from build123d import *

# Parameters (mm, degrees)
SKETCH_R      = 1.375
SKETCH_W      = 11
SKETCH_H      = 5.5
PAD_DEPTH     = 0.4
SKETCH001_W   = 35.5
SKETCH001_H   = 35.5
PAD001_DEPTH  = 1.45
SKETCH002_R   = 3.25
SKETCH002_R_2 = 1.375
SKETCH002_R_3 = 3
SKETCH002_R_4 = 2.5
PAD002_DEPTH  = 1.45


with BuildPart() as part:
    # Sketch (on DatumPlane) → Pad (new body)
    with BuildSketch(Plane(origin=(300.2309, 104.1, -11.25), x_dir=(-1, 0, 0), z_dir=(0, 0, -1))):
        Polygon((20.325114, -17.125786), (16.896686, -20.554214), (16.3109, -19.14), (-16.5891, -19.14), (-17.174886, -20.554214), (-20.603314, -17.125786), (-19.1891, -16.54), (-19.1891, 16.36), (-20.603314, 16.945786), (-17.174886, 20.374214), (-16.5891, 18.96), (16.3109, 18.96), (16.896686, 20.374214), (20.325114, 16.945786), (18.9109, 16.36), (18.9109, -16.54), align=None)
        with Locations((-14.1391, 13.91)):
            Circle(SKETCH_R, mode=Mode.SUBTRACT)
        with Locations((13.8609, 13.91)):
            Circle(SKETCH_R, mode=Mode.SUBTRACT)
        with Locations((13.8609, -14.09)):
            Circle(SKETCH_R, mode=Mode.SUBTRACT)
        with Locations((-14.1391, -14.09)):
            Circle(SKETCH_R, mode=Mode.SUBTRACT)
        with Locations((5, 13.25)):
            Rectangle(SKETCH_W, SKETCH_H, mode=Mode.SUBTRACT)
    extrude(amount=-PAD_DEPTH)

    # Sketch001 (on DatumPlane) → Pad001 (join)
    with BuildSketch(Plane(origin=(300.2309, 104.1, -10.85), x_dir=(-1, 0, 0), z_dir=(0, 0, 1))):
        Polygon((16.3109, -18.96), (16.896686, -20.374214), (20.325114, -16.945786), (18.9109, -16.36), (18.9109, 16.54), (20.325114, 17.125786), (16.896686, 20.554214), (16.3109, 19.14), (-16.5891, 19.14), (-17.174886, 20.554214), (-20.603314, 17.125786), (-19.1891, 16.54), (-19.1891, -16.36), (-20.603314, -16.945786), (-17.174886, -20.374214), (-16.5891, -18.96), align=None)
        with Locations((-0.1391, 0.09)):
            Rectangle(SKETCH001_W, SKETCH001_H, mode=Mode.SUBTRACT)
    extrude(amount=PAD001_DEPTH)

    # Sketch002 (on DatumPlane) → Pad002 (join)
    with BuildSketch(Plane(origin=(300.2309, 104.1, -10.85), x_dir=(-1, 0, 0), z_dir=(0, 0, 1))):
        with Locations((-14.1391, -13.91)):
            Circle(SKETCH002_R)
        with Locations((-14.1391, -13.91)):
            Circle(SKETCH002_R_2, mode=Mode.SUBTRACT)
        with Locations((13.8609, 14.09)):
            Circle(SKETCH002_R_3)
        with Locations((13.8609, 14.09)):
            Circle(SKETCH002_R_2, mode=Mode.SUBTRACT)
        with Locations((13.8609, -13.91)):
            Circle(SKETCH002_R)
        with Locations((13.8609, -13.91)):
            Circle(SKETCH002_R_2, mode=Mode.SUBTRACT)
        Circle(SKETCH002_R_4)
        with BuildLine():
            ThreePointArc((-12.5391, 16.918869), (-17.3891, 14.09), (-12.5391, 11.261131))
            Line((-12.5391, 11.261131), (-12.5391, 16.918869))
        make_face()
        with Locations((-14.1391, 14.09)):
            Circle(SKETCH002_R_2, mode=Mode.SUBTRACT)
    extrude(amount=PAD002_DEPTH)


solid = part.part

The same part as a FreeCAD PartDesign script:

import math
import FreeCAD as App
import Part
import Sketcher
from FreeCAD import Vector
Q = App.Units.Quantity

doc = App.newDocument("Part")
params = doc.addObject("Spreadsheet::Sheet", "Params")
for row, (alias, value) in enumerate([
    ("sketch1_diameter", "2.75 mm"),
    ("sketch1_width", "11 mm"),
    ("sketch1_width2", "32.9 mm"),
    ("sketch1_height", "5.5 mm"),
    ("pad1_length", "0.4 mm"),
    ("sketch2_width", "32.9 mm"),
    ("sketch2_width2", "35.5 mm"),
    ("pad2_length", "1.45 mm"),
    ("sketch3_diameter", "6 mm"),
    ("sketch3_diameter2", "5 mm"),
    ("sketch3_diameter3", "6.5 mm"),
    ("sketch3_diameter4", "2.75 mm"),
    ("pad3_length", "1.45 mm"),
], start=1):
    params.set(f"A{row}", alias)
    params.set(f"B{row}", "=" + value)
    params.setAlias(f"B{row}", alias)

body = doc.addObject("PartDesign::Body", "Body")

# Sketch on XY plane
sketch1 = body.newObject("Sketcher::SketchObject", "Sketch")
sketch1.AttachmentSupport = (doc.getObject("XY_Plane"), [""])
sketch1.MapMode = "FlatFace"
sketch1.AttachmentOffset = App.Placement(Vector(0, 0, -11.25), App.Rotation())
sketch1.addGeometry(Part.LineSegment(Vector(283.3, 83.5, 0), Vector(279.9, 87, 0)), False)
sketch1.addGeometry(Part.LineSegment(Vector(279.9, 87, 0), Vector(281.3, 87.6, 0)), False)
sketch1.addGeometry(Part.LineSegment(Vector(281.3, 87.6, 0), Vector(281.3, 120.5, 0)), False)
sketch1.addGeometry(Part.LineSegment(Vector(281.3, 120.5, 0), Vector(279.9, 121, 0)), False)
sketch1.addGeometry(Part.LineSegment(Vector(279.9, 121, 0), Vector(283.3, 124.5, 0)), False)
sketch1.addGeometry(Part.LineSegment(Vector(283.3, 124.5, 0), Vector(283.9, 123.1, 0)), False)
sketch1.addGeometry(Part.LineSegment(Vector(283.9, 123.1, 0), Vector(316.8, 123.1, 0)), False)
sketch1.addGeometry(Part.LineSegment(Vector(316.8, 123.1, 0), Vector(317.4, 124.5, 0)), False)
sketch1.addGeometry(Part.LineSegment(Vector(317.4, 124.5, 0), Vector(320.8, 121, 0)), False)
sketch1.addGeometry(Part.LineSegment(Vector(320.8, 121, 0), Vector(319.4, 120.5, 0)), False)
sketch1.addGeometry(Part.LineSegment(Vector(319.4, 120.5, 0), Vector(319.4, 87.6, 0)), False)
sketch1.addGeometry(Part.LineSegment(Vector(319.4, 87.6, 0), Vector(320.8, 87, 0)), False)
sketch1.addGeometry(Part.LineSegment(Vector(320.8, 87, 0), Vector(317.4, 83.5, 0)), False)
sketch1.addGeometry(Part.LineSegment(Vector(317.4, 83.5, 0), Vector(316.8, 85, 0)), False)
sketch1.addGeometry(Part.LineSegment(Vector(316.8, 85, 0), Vector(283.9, 85, 0)), False)
sketch1.addGeometry(Part.LineSegment(Vector(283.9, 85, 0), Vector(283.3, 83.5, 0)), False)
sketch1.addGeometry(Part.Circle(Vector(286.4, 90, 0), Vector(0, 0, 1), 1.4), False)
sketch1.addGeometry(Part.Circle(Vector(314.4, 90, 0), Vector(0, 0, 1), 1.4), False)
sketch1.addGeometry(Part.Circle(Vector(286.4, 118, 0), Vector(0, 0, 1), 1.4), False)
sketch1.addGeometry(Part.LineSegment(Vector(300.7, 114.6, 0), Vector(300.7, 120.1, 0)), False)
sketch1.addGeometry(Part.LineSegment(Vector(300.7, 120.1, 0), Vector(289.7, 120.1, 0)), False)
sketch1.addGeometry(Part.LineSegment(Vector(289.7, 120.1, 0), Vector(289.7, 114.6, 0)), False)
sketch1.addGeometry(Part.LineSegment(Vector(289.7, 114.6, 0), Vector(300.7, 114.6, 0)), False)
sketch1.addGeometry(Part.Circle(Vector(314.4, 118, 0), Vector(0, 0, 1), 1.4), False)
sketch1.addConstraint(Sketcher.Constraint("Coincident", 0, 2, 1, 1))
sketch1.addConstraint(Sketcher.Constraint("Coincident", 1, 2, 2, 1))
sketch1.addConstraint(Sketcher.Constraint("Coincident", 2, 2, 3, 1))
sketch1.addConstraint(Sketcher.Constraint("Coincident", 3, 2, 4, 1))
sketch1.addConstraint(Sketcher.Constraint("Coincident", 4, 2, 5, 1))
sketch1.addConstraint(Sketcher.Constraint("Coincident", 5, 2, 6, 1))
sketch1.addConstraint(Sketcher.Constraint("Coincident", 6, 2, 7, 1))
sketch1.addConstraint(Sketcher.Constraint("Coincident", 7, 2, 8, 1))
sketch1.addConstraint(Sketcher.Constraint("Coincident", 8, 2, 9, 1))
sketch1.addConstraint(Sketcher.Constraint("Coincident", 9, 2, 10, 1))
sketch1.addConstraint(Sketcher.Constraint("Coincident", 10, 2, 11, 1))
sketch1.addConstraint(Sketcher.Constraint("Coincident", 11, 2, 12, 1))
sketch1.addConstraint(Sketcher.Constraint("Coincident", 12, 2, 13, 1))
sketch1.addConstraint(Sketcher.Constraint("Coincident", 13, 2, 14, 1))
sketch1.addConstraint(Sketcher.Constraint("Coincident", 14, 2, 15, 1))
sketch1.addConstraint(Sketcher.Constraint("Coincident", 15, 2, 0, 1))
sketch1.addConstraint(Sketcher.Constraint("Coincident", 19, 2, 20, 1))
sketch1.addConstraint(Sketcher.Constraint("Coincident", 20, 2, 21, 1))
sketch1.addConstraint(Sketcher.Constraint("Coincident", 21, 2, 22, 1))
sketch1.addConstraint(Sketcher.Constraint("Coincident", 22, 2, 19, 1))
sketch1.addConstraint(Sketcher.Constraint("Vertical", 2))
sketch1.addConstraint(Sketcher.Constraint("Horizontal", 6))
sketch1.addConstraint(Sketcher.Constraint("Vertical", 10))
sketch1.addConstraint(Sketcher.Constraint("Horizontal", 14))
sketch1.addConstraint(Sketcher.Constraint("Vertical", 19))
sketch1.addConstraint(Sketcher.Constraint("Horizontal", 20))
sketch1.addConstraint(Sketcher.Constraint("Vertical", 21))
sketch1.addConstraint(Sketcher.Constraint("Horizontal", 22))
sketch1.addConstraint(Sketcher.Constraint("Equal", 16, 17))
sketch1.addConstraint(Sketcher.Constraint("Equal", 17, 18))
sketch1.addConstraint(Sketcher.Constraint("Equal", 18, 23))
sketch1.addConstraint(Sketcher.Constraint("Perpendicular", 0, 4))
sketch1.addConstraint(Sketcher.Constraint("Perpendicular", 1, 5))
sketch1.addConstraint(Sketcher.Constraint("Perpendicular", 3, 7))
sketch1.addConstraint(Sketcher.Constraint("Perpendicular", 4, 8))
sketch1.addConstraint(Sketcher.Constraint("Perpendicular", 5, 9))
sketch1.addConstraint(Sketcher.Constraint("Perpendicular", 7, 11))
sketch1.addConstraint(Sketcher.Constraint("Perpendicular", 8, 12))
sketch1.addConstraint(Sketcher.Constraint("Perpendicular", 9, 13))
sketch1.addConstraint(Sketcher.Constraint("Perpendicular", 11, 15))
sketch1.addConstraint(Sketcher.Constraint("Horizontal", 16, 3, 17, 3))
sketch1.addConstraint(Sketcher.Constraint("Horizontal", 18, 3, 23, 3))
sketch1.addConstraint(Sketcher.Constraint("Horizontal", 4, 2, 7, 2))
sketch1.addConstraint(Sketcher.Constraint("Horizontal", 3, 2, 8, 2))
sketch1.addConstraint(Sketcher.Constraint("Horizontal", 2, 2, 9, 2))
sketch1.addConstraint(Sketcher.Constraint("Horizontal", 1, 2, 10, 2))
sketch1.addConstraint(Sketcher.Constraint("Horizontal", 0, 2, 11, 2))
sketch1.addConstraint(Sketcher.Constraint("Horizontal", 12, 2, 15, 2))
sketch1.addConstraint(Sketcher.Constraint("Vertical", 16, 3, 18, 3))
sketch1.addConstraint(Sketcher.Constraint("Vertical", 17, 3, 23, 3))
sketch1.addConstraint(Sketcher.Constraint("Vertical", 0, 2, 3, 2))
sketch1.addConstraint(Sketcher.Constraint("Vertical", 8, 2, 11, 2))
sketch1.addConstraint(Sketcher.Constraint("Vertical", 7, 2, 12, 2))
sketch1.addConstraint(Sketcher.Constraint("Vertical", 6, 2, 13, 2))
sketch1.addConstraint(Sketcher.Constraint("Vertical", 5, 2, 14, 2))
sketch1.addConstraint(Sketcher.Constraint("Equal", 14, 2))
sketch1.addConstraint(Sketcher.Constraint("Equal", 3, 5))
sketch1.addConstraint(Sketcher.Constraint("Diameter", 16, Q("2.75 mm")))
sketch1.addConstraint(Sketcher.Constraint("DistanceX", 20, 2, 20, 1, Q("11 mm")))
sketch1.addConstraint(Sketcher.Constraint("DistanceX", 6, 1, 6, 2, Q("32.9 mm")))
sketch1.addConstraint(Sketcher.Constraint("DistanceY", 19, 1, 19, 2, Q("5.5 mm")))
sketch1.addConstraint(Sketcher.Constraint("DistanceX", 16, 3, 17, 3, Q("28 mm")))
sketch1.addConstraint(Sketcher.Constraint("DistanceY", 16, 3, 18, 3, Q("28 mm")))
sketch1.addConstraint(Sketcher.Constraint("DistanceY", -1, 1, 19, 2, Q("120.1 mm")))
sketch1.addConstraint(Sketcher.Constraint("DistanceX", 2, 2, 5, 2, Q("2.6 mm")))
sketch1.addConstraint(Sketcher.Constraint("DistanceX", -1, 1, 16, 3, Q("286.37 mm")))
sketch1.addConstraint(Sketcher.Constraint("DistanceY", -1, 1, 16, 3, Q("90.01 mm")))
sketch1.addConstraint(Sketcher.Constraint("DistanceX", -1, 1, 1, 2, Q("281.32 mm")))
sketch1.addConstraint(Sketcher.Constraint("DistanceY", -1, 1, 1, 2, Q("87.56 mm")))
sketch1.addConstraint(Sketcher.Constraint("DistanceX", -1, 1, 19, 2, Q("300.7309 mm")))
sketch1.addConstraint(Sketcher.Constraint("Distance", 0, Q("4.848529 mm")))
sketch1.addConstraint(Sketcher.Constraint("Distance", 1, Q("1.530734 mm")))
sketch1.setExpression("Constraints[57]", "Params.sketch1_diameter")
sketch1.setExpression("Constraints[58]", "Params.sketch1_width")
sketch1.setExpression("Constraints[59]", "Params.sketch1_width2")
sketch1.setExpression("Constraints[60]", "Params.sketch1_height")
pad1 = body.newObject("PartDesign::Pad", "Pad")
pad1.Profile = sketch1
pad1.setExpression("Length", "Params.pad1_length")

# Sketch on XY plane
sketch2 = body.newObject("Sketcher::SketchObject", "Sketch001")
sketch2.AttachmentSupport = (doc.getObject("XY_Plane"), [""])
sketch2.MapMode = "FlatFace"
sketch2.AttachmentOffset = App.Placement(Vector(0, 0, -10.85), App.Rotation())
sketch2.addGeometry(Part.LineSegment(Vector(283.9, 123.1, 0), Vector(283.3, 124.5, 0)), False)
sketch2.addGeometry(Part.LineSegment(Vector(283.3, 124.5, 0), Vector(279.9, 121, 0)), False)
sketch2.addGeometry(Part.LineSegment(Vector(279.9, 121, 0), Vector(281.3, 120.5, 0)), False)
sketch2.addGeometry(Part.LineSegment(Vector(281.3, 120.5, 0), Vector(281.3, 87.6, 0)), False)
sketch2.addGeometry(Part.LineSegment(Vector(281.3, 87.6, 0), Vector(279.9, 87, 0)), False)
sketch2.addGeometry(Part.LineSegment(Vector(279.9, 87, 0), Vector(283.3, 83.5, 0)), False)
sketch2.addGeometry(Part.LineSegment(Vector(283.3, 83.5, 0), Vector(283.9, 85, 0)), False)
sketch2.addGeometry(Part.LineSegment(Vector(283.9, 85, 0), Vector(316.8, 85, 0)), False)
sketch2.addGeometry(Part.LineSegment(Vector(316.8, 85, 0), Vector(317.4, 83.5, 0)), False)
sketch2.addGeometry(Part.LineSegment(Vector(317.4, 83.5, 0), Vector(320.8, 87, 0)), False)
sketch2.addGeometry(Part.LineSegment(Vector(320.8, 87, 0), Vector(319.4, 87.6, 0)), False)
sketch2.addGeometry(Part.LineSegment(Vector(319.4, 87.6, 0), Vector(319.4, 120.5, 0)), False)
sketch2.addGeometry(Part.LineSegment(Vector(319.4, 120.5, 0), Vector(320.8, 121, 0)), False)
sketch2.addGeometry(Part.LineSegment(Vector(320.8, 121, 0), Vector(317.4, 124.5, 0)), False)
sketch2.addGeometry(Part.LineSegment(Vector(317.4, 124.5, 0), Vector(316.8, 123.1, 0)), False)
sketch2.addGeometry(Part.LineSegment(Vector(316.8, 123.1, 0), Vector(283.9, 123.1, 0)), False)
sketch2.addGeometry(Part.LineSegment(Vector(282.6, 121.8, 0), Vector(318.1, 121.8, 0)), False)
sketch2.addGeometry(Part.LineSegment(Vector(318.1, 121.8, 0), Vector(318.1, 86.3, 0)), False)
sketch2.addGeometry(Part.LineSegment(Vector(318.1, 86.3, 0), Vector(282.6, 86.3, 0)), False)
sketch2.addGeometry(Part.LineSegment(Vector(282.6, 86.3, 0), Vector(282.6, 121.8, 0)), False)
sketch2.addConstraint(Sketcher.Constraint("Coincident", 0, 2, 1, 1))
sketch2.addConstraint(Sketcher.Constraint("Coincident", 1, 2, 2, 1))
sketch2.addConstraint(Sketcher.Constraint("Coincident", 2, 2, 3, 1))
sketch2.addConstraint(Sketcher.Constraint("Coincident", 3, 2, 4, 1))
sketch2.addConstraint(Sketcher.Constraint("Coincident", 4, 2, 5, 1))
sketch2.addConstraint(Sketcher.Constraint("Coincident", 5, 2, 6, 1))
sketch2.addConstraint(Sketcher.Constraint("Coincident", 6, 2, 7, 1))
sketch2.addConstraint(Sketcher.Constraint("Coincident", 7, 2, 8, 1))
sketch2.addConstraint(Sketcher.Constraint("Coincident", 8, 2, 9, 1))
sketch2.addConstraint(Sketcher.Constraint("Coincident", 9, 2, 10, 1))
sketch2.addConstraint(Sketcher.Constraint("Coincident", 10, 2, 11, 1))
sketch2.addConstraint(Sketcher.Constraint("Coincident", 11, 2, 12, 1))
sketch2.addConstraint(Sketcher.Constraint("Coincident", 12, 2, 13, 1))
sketch2.addConstraint(Sketcher.Constraint("Coincident", 13, 2, 14, 1))
sketch2.addConstraint(Sketcher.Constraint("Coincident", 14, 2, 15, 1))
sketch2.addConstraint(Sketcher.Constraint("Coincident", 15, 2, 0, 1))
sketch2.addConstraint(Sketcher.Constraint("Coincident", 16, 2, 17, 1))
sketch2.addConstraint(Sketcher.Constraint("Coincident", 17, 2, 18, 1))
sketch2.addConstraint(Sketcher.Constraint("Coincident", 18, 2, 19, 1))
sketch2.addConstraint(Sketcher.Constraint("Coincident", 19, 2, 16, 1))
sketch2.addConstraint(Sketcher.Constraint("Vertical", 3))
sketch2.addConstraint(Sketcher.Constraint("Horizontal", 7))
sketch2.addConstraint(Sketcher.Constraint("Vertical", 11))
sketch2.addConstraint(Sketcher.Constraint("Horizontal", 15))
sketch2.addConstraint(Sketcher.Constraint("Horizontal", 16))
sketch2.addConstraint(Sketcher.Constraint("Vertical", 17))
sketch2.addConstraint(Sketcher.Constraint("Horizontal", 18))
sketch2.addConstraint(Sketcher.Constraint("Vertical", 19))
sketch2.addConstraint(Sketcher.Constraint("Perpendicular", 0, 4))
sketch2.addConstraint(Sketcher.Constraint("Perpendicular", 1, 5))
sketch2.addConstraint(Sketcher.Constraint("Perpendicular", 2, 6))
sketch2.addConstraint(Sketcher.Constraint("Perpendicular", 4, 8))
sketch2.addConstraint(Sketcher.Constraint("Perpendicular", 5, 9))
sketch2.addConstraint(Sketcher.Constraint("Perpendicular", 6, 10))
sketch2.addConstraint(Sketcher.Constraint("Perpendicular", 8, 12))
sketch2.addConstraint(Sketcher.Constraint("Perpendicular", 9, 13))
sketch2.addConstraint(Sketcher.Constraint("Perpendicular", 10, 14))
sketch2.addConstraint(Sketcher.Constraint("Horizontal", 5, 2, 8, 2))
sketch2.addConstraint(Sketcher.Constraint("Horizontal", 4, 2, 9, 2))
sketch2.addConstraint(Sketcher.Constraint("Horizontal", 3, 2, 10, 2))
sketch2.addConstraint(Sketcher.Constraint("Horizontal", 2, 2, 11, 2))
sketch2.addConstraint(Sketcher.Constraint("Horizontal", 1, 2, 12, 2))
sketch2.addConstraint(Sketcher.Constraint("Horizontal", 0, 2, 13, 2))
sketch2.addConstraint(Sketcher.Constraint("Vertical", 1, 2, 4, 2))
sketch2.addConstraint(Sketcher.Constraint("Vertical", 0, 2, 5, 2))
sketch2.addConstraint(Sketcher.Constraint("Vertical", 9, 2, 12, 2))
sketch2.addConstraint(Sketcher.Constraint("Vertical", 8, 2, 13, 2))
sketch2.addConstraint(Sketcher.Constraint("Vertical", 7, 2, 14, 2))
sketch2.addConstraint(Sketcher.Constraint("Equal", 15, 3))
sketch2.addConstraint(Sketcher.Constraint("Equal", 18, 17))
sketch2.addConstraint(Sketcher.Constraint("Equal", 0, 2))
sketch2.addConstraint(Sketcher.Constraint("DistanceX", 7, 1, 7, 2, Q("32.9 mm")))
sketch2.addConstraint(Sketcher.Constraint("DistanceX", 16, 1, 16, 2, Q("35.5 mm")))
sketch2.addConstraint(Sketcher.Constraint("DistanceY", 4, 2, 0, 2, Q("37.5 mm")))
sketch2.addConstraint(Sketcher.Constraint("DistanceX", 3, 2, 6, 2, Q("2.6 mm")))
sketch2.addConstraint(Sketcher.Constraint("DistanceX", 14, 2, 16, 2, Q("1.3 mm")))
sketch2.addConstraint(Sketcher.Constraint("DistanceY", 16, 2, 14, 2, Q("1.3 mm")))
sketch2.addConstraint(Sketcher.Constraint("DistanceX", -1, 1, 2, 2, Q("281.32 mm")))
sketch2.addConstraint(Sketcher.Constraint("DistanceY", -1, 1, 2, 2, Q("120.46 mm")))
sketch2.addConstraint(Sketcher.Constraint("Distance", 1, Q("4.848529 mm")))
sketch2.setExpression("Constraints[51]", "Params.sketch2_width")
sketch2.setExpression("Constraints[52]", "Params.sketch2_width2")
pad2 = body.newObject("PartDesign::Pad", "Pad001")
pad2.Profile = sketch2
pad2.setExpression("Length", "Params.pad2_length")

# Sketch on XY plane
sketch3 = body.newObject("Sketcher::SketchObject", "Sketch002")
sketch3.AttachmentSupport = (doc.getObject("XY_Plane"), [""])
sketch3.MapMode = "FlatFace"
sketch3.AttachmentOffset = App.Placement(Vector(0, 0, -10.85), App.Rotation())
sketch3.addGeometry(Part.Circle(Vector(314.4, 118, 0), Vector(0, 0, 1), 3.2), False)
sketch3.addGeometry(Part.Circle(Vector(314.4, 118, 0), Vector(0, 0, 1), 1.4), False)
sketch3.addGeometry(Part.Circle(Vector(286.4, 90, 0), Vector(0, 0, 1), 3), False)
sketch3.addGeometry(Part.Circle(Vector(286.4, 90, 0), Vector(0, 0, 1), 1.4), False)
sketch3.addGeometry(Part.Circle(Vector(286.4, 118, 0), Vector(0, 0, 1), 3.2), False)
sketch3.addGeometry(Part.Circle(Vector(286.4, 118, 0), Vector(0, 0, 1), 1.4), False)
sketch3.addGeometry(Part.Circle(Vector(300.2, 104.1, 0), Vector(0, 0, 1), 2.5), False)
sketch3.addGeometry(Part.ArcOfCircle(Part.Circle(Vector(314.4, 90, 0), Vector(0, 0, 1), 3.2), math.radians(-119), math.radians(119)), False)
sketch3.addGeometry(Part.LineSegment(Vector(312.8, 92.8, 0), Vector(312.8, 87.2, 0)), False)
sketch3.addGeometry(Part.Circle(Vector(314.4, 90, 0), Vector(0, 0, 1), 1.4), False)
sketch3.addConstraint(Sketcher.Constraint("Coincident", 7, 1, 8, 2))
sketch3.addConstraint(Sketcher.Constraint("Coincident", 8, 1, 7, 2))
sketch3.addConstraint(Sketcher.Constraint("Vertical", 8))
sketch3.addConstraint(Sketcher.Constraint("Coincident", 1, 3, 0, 3))
sketch3.addConstraint(Sketcher.Constraint("Coincident", 3, 3, 2, 3))
sketch3.addConstraint(Sketcher.Constraint("Coincident", 5, 3, 4, 3))
sketch3.addConstraint(Sketcher.Constraint("Coincident", 9, 3, 7, 3))
sketch3.addConstraint(Sketcher.Constraint("Equal", 1, 3))
sketch3.addConstraint(Sketcher.Constraint("Equal", 0, 4))
sketch3.addConstraint(Sketcher.Constraint("Equal", 3, 5))
sketch3.addConstraint(Sketcher.Constraint("Equal", 4, 7))
sketch3.addConstraint(Sketcher.Constraint("Equal", 5, 9))
sketch3.addConstraint(Sketcher.Constraint("Horizontal", 1, 3, 4, 3))
sketch3.addConstraint(Sketcher.Constraint("Horizontal", 3, 3, 7, 3))
sketch3.addConstraint(Sketcher.Constraint("Vertical", 3, 3, 4, 3))
sketch3.addConstraint(Sketcher.Constraint("Vertical", 1, 3, 7, 3))
sketch3.addConstraint(Sketcher.Constraint("Diameter", 2, Q("6 mm")))
sketch3.addConstraint(Sketcher.Constraint("Diameter", 6, Q("5 mm")))
sketch3.addConstraint(Sketcher.Constraint("Diameter", 0, Q("6.5 mm")))
sketch3.addConstraint(Sketcher.Constraint("Diameter", 1, Q("2.75 mm")))
sketch3.addConstraint(Sketcher.Constraint("DistanceX", 2, 3, 0, 3, Q("28 mm")))
sketch3.addConstraint(Sketcher.Constraint("DistanceY", 2, 3, 0, 3, Q("28 mm")))
sketch3.addConstraint(Sketcher.Constraint("DistanceY", -1, 1, 6, 3, Q("104.1 mm")))
sketch3.addConstraint(Sketcher.Constraint("DistanceX", 7, 1, 9, 3, Q("1.6 mm")))
sketch3.addConstraint(Sketcher.Constraint("DistanceX", -1, 1, 0, 3, Q("314.37 mm")))
sketch3.addConstraint(Sketcher.Constraint("DistanceY", -1, 1, 0, 3, Q("118.01 mm")))
sketch3.addConstraint(Sketcher.Constraint("DistanceX", -1, 1, 6, 3, Q("300.2309 mm")))
sketch3.setExpression("Constraints[16]", "Params.sketch3_diameter")
sketch3.setExpression("Constraints[17]", "Params.sketch3_diameter2")
sketch3.setExpression("Constraints[18]", "Params.sketch3_diameter3")
sketch3.setExpression("Constraints[19]", "Params.sketch3_diameter4")
pad3 = body.newObject("PartDesign::Pad", "Pad002")
pad3.Profile = sketch3
pad3.setExpression("Length", "Params.pad3_length")

doc.recompute()
